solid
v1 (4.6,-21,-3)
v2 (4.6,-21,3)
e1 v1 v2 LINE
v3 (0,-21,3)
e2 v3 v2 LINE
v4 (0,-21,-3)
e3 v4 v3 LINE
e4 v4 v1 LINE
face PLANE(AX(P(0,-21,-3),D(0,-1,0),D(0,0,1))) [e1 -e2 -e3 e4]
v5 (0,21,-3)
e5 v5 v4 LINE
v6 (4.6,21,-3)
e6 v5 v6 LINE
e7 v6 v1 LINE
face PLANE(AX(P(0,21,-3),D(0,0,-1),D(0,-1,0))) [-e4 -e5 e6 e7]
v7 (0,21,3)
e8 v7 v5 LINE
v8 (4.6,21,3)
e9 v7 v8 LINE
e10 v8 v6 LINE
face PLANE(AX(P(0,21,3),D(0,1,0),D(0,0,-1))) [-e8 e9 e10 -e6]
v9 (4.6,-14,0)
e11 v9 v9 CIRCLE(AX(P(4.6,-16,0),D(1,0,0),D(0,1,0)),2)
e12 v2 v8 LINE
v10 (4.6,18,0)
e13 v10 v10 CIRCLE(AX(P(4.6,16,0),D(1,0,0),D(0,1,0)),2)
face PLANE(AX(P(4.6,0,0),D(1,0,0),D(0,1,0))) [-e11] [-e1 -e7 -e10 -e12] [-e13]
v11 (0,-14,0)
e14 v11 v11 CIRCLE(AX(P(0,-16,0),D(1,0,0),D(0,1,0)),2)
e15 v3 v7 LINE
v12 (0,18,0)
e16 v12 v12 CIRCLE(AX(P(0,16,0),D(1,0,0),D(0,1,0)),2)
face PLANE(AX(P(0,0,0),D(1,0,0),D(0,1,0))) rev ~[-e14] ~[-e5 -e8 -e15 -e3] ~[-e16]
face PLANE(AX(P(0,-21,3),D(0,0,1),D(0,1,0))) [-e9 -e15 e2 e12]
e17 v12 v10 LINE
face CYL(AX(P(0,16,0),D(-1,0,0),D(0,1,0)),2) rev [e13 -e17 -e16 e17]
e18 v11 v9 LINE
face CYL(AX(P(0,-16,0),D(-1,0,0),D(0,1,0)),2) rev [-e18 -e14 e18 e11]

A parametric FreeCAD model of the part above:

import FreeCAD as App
import Part
import Sketcher
from FreeCAD import Vector
Q = App.Units.Quantity

doc = App.newDocument("Part")
body = doc.addObject("PartDesign::Body", "Body")

# Sketch on YZ plane
sketch1 = body.newObject("Sketcher::SketchObject", "Sketch")
sketch1.AttachmentSupport = (doc.getObject("YZ_Plane"), [""])
sketch1.MapMode = "FlatFace"
sketch1.addGeometry(Part.LineSegment(Vector(21, 3, 0), Vector(-21, 3, 0)), False)
sketch1.addGeometry(Part.LineSegment(Vector(-21, 3, 0), Vector(-21, -3, 0)), False)
sketch1.addGeometry(Part.LineSegment(Vector(-21, -3, 0), Vector(21, -3, 0)), False)
sketch1.addGeometry(Part.LineSegment(Vector(21, -3, 0), Vector(21, 3, 0)), False)
sketch1.addGeometry(Part.Circle(Vector(-16, 0, 0), Vector(0, 0, 1), 2), False)
sketch1.addGeometry(Part.Circle(Vector(16, 0, 0), Vector(0, 0, 1), 2), False)
sketch1.addConstraint(Sketcher.Constraint("Coincident", 0, 2, 1, 1))
sketch1.addConstraint(Sketcher.Constraint("Coincident", 1, 2, 2, 1))
sketch1.addConstraint(Sketcher.Constraint("Coincident", 2, 2, 3, 1))
sketch1.addConstraint(Sketcher.Constraint("Coincident", 3, 2, 0, 1))
sketch1.addConstraint(Sketcher.Constraint("Horizontal", 0))
sketch1.addConstraint(Sketcher.Constraint("Vertical", 1))
sketch1.addConstraint(Sketcher.Constraint("Horizontal", 2))
sketch1.addConstraint(Sketcher.Constraint("Vertical", 3))
sketch1.addConstraint(Sketcher.Constraint("Equal", 4, 5))
sketch1.addConstraint(Sketcher.Constraint("Symmetric", 4, 3, 5, 3, -1, 1))
sketch1.addConstraint(Sketcher.Constraint("Symmetric", 0, 2, 2, 2, -1, 1))
sketch1.addConstraint(Sketcher.Constraint("PointOnObject", 4, 3, -1))
sketch1.addConstraint(Sketcher.Constraint("Diameter", 4, Q("4 mm")))
sketch1.addConstraint(Sketcher.Constraint("DistanceX", 0, 2, 0, 1, Q("42 mm")))
sketch1.addConstraint(Sketcher.Constraint("DistanceY", 1, 2, 1, 1, Q("6 mm")))
sketch1.addConstraint(Sketcher.Constraint("DistanceX", 4, 3, -1, 1, Q("16 mm")))
pad1 = body.newObject("PartDesign::Pad", "Pad")
pad1.Profile = sketch1
pad1.Length = 4.6

doc.recompute()
